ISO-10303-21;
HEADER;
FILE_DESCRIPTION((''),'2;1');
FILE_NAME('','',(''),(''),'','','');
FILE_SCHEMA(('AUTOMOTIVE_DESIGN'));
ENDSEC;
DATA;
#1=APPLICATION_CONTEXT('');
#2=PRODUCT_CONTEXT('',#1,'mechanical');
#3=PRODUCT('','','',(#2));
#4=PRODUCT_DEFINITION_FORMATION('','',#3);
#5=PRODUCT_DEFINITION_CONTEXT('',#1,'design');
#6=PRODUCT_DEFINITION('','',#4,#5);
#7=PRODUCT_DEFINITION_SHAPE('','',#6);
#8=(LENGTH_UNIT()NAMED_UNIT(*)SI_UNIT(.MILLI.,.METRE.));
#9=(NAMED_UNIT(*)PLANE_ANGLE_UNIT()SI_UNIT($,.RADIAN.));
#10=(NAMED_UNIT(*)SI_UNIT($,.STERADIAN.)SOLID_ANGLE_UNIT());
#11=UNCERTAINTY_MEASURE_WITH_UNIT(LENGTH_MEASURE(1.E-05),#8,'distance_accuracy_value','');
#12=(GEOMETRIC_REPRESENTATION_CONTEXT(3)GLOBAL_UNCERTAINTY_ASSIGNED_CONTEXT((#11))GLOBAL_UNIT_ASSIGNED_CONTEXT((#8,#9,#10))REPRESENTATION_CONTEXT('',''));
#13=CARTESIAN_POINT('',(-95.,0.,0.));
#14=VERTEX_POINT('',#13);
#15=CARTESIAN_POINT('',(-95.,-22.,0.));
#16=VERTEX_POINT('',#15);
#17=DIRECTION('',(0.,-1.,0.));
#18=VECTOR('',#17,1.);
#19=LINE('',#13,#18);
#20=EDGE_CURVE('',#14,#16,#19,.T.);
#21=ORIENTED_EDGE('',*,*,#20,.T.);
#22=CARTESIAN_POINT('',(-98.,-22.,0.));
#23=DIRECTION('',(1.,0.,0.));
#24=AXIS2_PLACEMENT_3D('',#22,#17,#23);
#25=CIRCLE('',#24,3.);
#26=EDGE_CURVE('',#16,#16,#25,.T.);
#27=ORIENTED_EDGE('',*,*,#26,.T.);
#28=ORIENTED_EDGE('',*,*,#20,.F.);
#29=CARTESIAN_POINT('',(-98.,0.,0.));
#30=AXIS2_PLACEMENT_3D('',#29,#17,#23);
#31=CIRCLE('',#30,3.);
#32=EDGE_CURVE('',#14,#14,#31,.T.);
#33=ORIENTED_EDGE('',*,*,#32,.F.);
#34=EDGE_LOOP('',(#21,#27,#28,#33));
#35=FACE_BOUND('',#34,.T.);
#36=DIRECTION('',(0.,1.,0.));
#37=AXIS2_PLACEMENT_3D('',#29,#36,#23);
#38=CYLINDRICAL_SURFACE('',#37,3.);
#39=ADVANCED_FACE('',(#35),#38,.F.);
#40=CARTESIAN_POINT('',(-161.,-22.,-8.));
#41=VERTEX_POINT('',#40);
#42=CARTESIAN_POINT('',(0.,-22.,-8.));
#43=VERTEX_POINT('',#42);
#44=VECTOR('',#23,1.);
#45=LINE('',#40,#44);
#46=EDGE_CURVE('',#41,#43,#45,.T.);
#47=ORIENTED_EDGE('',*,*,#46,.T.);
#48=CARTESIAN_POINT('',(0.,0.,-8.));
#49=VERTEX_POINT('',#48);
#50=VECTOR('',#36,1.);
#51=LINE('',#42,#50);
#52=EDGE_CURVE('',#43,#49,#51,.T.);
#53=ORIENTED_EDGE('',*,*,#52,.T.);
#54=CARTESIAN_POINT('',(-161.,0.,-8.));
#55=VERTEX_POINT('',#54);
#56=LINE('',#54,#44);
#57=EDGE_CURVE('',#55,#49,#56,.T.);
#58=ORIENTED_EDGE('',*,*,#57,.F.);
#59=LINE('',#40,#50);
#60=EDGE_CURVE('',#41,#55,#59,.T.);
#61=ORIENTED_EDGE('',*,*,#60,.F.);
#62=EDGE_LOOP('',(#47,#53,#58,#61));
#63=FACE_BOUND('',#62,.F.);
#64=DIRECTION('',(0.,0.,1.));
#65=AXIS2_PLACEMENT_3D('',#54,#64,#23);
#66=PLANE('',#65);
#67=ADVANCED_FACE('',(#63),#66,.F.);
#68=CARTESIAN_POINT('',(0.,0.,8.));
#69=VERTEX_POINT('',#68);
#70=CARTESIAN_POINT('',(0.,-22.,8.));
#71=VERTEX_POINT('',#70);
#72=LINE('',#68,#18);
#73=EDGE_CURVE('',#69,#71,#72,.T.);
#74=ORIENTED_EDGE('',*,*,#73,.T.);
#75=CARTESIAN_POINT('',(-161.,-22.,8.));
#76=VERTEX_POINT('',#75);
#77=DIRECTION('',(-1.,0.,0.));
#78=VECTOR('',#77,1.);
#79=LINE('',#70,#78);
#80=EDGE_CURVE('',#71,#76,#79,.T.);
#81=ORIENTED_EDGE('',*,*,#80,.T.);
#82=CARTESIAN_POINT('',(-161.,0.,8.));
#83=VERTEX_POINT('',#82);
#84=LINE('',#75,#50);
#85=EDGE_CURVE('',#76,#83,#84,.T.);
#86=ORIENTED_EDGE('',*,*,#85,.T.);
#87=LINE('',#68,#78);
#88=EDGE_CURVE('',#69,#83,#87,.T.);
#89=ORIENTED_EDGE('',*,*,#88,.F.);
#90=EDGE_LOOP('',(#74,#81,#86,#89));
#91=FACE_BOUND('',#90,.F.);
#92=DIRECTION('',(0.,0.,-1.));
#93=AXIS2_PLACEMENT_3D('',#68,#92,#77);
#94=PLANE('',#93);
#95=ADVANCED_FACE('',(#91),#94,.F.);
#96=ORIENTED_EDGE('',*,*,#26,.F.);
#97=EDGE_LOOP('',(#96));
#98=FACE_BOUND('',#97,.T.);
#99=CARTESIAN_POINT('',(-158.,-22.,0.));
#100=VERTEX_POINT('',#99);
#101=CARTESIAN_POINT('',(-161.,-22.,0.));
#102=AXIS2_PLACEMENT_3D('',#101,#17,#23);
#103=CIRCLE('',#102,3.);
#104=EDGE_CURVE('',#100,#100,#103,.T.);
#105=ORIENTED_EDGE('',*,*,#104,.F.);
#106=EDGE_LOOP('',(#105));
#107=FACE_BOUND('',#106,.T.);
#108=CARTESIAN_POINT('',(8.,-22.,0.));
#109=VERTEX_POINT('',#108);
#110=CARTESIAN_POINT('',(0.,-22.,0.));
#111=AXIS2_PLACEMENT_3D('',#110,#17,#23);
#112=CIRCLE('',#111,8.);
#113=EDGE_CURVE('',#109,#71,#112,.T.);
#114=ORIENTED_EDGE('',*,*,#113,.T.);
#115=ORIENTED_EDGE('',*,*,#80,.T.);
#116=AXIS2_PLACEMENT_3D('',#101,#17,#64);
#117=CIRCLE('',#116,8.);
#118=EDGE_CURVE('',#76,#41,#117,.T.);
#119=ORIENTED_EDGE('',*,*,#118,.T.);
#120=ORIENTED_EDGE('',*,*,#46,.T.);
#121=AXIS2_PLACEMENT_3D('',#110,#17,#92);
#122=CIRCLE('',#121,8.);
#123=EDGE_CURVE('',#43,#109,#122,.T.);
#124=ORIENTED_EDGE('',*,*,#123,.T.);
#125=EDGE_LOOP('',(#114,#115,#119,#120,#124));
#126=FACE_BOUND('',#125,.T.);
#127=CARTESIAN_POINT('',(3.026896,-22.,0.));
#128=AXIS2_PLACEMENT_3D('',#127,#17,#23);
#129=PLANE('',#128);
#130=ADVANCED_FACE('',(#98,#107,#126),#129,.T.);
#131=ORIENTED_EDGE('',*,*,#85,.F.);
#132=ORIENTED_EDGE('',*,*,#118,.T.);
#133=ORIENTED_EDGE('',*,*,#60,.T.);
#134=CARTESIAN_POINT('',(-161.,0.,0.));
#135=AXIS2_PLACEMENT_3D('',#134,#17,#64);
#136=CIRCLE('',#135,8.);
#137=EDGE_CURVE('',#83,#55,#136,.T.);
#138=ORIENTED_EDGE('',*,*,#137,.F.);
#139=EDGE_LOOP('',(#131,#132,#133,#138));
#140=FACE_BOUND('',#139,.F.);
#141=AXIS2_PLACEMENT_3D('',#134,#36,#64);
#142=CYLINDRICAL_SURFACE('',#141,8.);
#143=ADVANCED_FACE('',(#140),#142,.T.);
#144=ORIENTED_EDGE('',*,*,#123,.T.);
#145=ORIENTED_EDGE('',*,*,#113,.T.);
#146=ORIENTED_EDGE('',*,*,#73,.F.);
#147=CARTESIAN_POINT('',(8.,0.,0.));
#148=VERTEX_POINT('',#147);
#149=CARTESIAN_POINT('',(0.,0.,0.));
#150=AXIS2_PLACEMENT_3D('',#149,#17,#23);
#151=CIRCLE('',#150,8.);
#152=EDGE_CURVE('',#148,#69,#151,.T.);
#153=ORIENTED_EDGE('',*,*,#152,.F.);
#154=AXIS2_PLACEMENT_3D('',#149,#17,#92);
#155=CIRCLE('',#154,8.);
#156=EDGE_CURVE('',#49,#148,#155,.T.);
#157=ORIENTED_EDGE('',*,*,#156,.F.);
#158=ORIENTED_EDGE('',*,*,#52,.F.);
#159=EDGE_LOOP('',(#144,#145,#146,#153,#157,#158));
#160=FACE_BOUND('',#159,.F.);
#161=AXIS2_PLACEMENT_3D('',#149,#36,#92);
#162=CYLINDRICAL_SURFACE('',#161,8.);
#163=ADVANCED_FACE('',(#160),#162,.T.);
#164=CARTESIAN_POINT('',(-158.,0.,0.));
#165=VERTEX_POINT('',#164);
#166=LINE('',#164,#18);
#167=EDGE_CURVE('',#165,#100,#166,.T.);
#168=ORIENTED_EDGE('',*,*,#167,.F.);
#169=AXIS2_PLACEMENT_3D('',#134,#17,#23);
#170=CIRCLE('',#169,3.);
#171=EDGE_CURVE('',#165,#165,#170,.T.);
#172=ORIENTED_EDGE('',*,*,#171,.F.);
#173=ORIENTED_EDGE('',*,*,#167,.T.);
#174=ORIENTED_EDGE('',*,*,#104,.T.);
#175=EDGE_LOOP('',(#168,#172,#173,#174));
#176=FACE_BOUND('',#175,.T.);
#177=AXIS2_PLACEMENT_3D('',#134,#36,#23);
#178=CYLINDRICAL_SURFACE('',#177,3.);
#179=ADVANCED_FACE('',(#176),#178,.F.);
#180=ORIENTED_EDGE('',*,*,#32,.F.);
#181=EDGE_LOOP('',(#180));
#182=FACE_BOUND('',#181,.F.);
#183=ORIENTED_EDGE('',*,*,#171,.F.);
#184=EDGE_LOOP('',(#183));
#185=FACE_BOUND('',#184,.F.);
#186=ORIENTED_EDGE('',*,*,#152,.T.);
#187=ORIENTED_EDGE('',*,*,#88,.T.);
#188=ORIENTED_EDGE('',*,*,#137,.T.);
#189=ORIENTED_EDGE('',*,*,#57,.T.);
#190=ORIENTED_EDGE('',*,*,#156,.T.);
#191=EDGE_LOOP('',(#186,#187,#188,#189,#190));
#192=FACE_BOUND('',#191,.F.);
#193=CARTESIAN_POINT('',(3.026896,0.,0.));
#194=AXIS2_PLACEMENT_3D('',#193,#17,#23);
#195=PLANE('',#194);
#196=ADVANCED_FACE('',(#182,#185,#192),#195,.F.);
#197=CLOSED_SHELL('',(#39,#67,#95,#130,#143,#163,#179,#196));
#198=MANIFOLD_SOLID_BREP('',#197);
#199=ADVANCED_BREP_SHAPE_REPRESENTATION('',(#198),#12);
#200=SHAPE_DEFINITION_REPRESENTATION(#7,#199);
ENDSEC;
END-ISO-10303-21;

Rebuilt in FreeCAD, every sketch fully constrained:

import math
import FreeCAD as App
import Part
import Sketcher

V = App.Vector

doc = App.newDocument("Part")
params = doc.addObject("Spreadsheet::Sheet", "Params")
for row, (alias, value) in enumerate([
    ("sketch1_diameter", "6 mm"),
    ("sketch1_radius", "8 mm"),
    ("sketch1_width", "161 mm"),
    ("pad1_length", "6 mm"),
    ("sketch2_diameter", "6 mm"),
    ("sketch2_radius", "8 mm"),
    ("sketch2_width", "161 mm"),
    ("pad2_length", "22 mm"),
], start=1):
    params.set(f"A{row}", alias)
    params.set(f"B{row}", "=" + value)
    params.setAlias(f"B{row}", alias)

body = doc.addObject("PartDesign::Body", "Body")

# Sketch on XZ plane
sketch1 = doc.addObject("Sketcher::SketchObject", "Sketch")
body.addObject(sketch1)
sketch1.AttachmentSupport = (doc.XZ_Plane, [""])
sketch1.MapMode = "FlatFace"
sketch1.addGeometry(Part.ArcOfCircle(Part.Circle(V(0, 0, 0), V(0, 0, 1), 8), math.radians(-90), math.radians(0)), False)
sketch1.addGeometry(Part.ArcOfCircle(Part.Circle(V(0, 0, 0), V(0, 0, 1), 8), math.radians(0), math.radians(90)), False)
sketch1.addGeometry(Part.LineSegment(V(0, 8, 0), V(-161, 8, 0)), False)
sketch1.addGeometry(Part.ArcOfCircle(Part.Circle(V(-161, 0, 0), V(0, 0, 1), 8), math.radians(90), math.radians(270)), False)
sketch1.addGeometry(Part.LineSegment(V(-161, -8, 0), V(0, -8, 0)), False)
sketch1.addGeometry(Part.Circle(V(-161, 0, 0), V(0, 0, 1), 3), False)
sketch1.addGeometry(Part.Circle(V(-98, 0, 0), V(0, 0, 1), 3), False)
sketch1.addConstraint(Sketcher.Constraint("Tangent", 0, 2, 1, 1))
sketch1.addConstraint(Sketcher.Constraint("Tangent", 1, 2, 2, 1))
sketch1.addConstraint(Sketcher.Constraint("Tangent", 2, 2, 3, 1))
sketch1.addConstraint(Sketcher.Constraint("Tangent", 3, 2, 4, 1))
sketch1.addConstraint(Sketcher.Constraint("Tangent", 4, 2, 0, 1))
sketch1.addConstraint(Sketcher.Constraint("Horizontal", 2))
sketch1.addConstraint(Sketcher.Constraint("Horizontal", 4))
sketch1.addConstraint(Sketcher.Constraint("Coincident", 0, 3, -1, 1))
sketch1.addConstraint(Sketcher.Constraint("Coincident", 5, 3, 3, 3))
sketch1.addConstraint(Sketcher.Constraint("Equal", 0, 1))
sketch1.addConstraint(Sketcher.Constraint("Equal", 5, 6))
sketch1.addConstraint(Sketcher.Constraint("PointOnObject", 6, 3, -1))
sketch1.addConstraint(Sketcher.Constraint("PointOnObject", 0, 2, -1))
sketch1.addConstraint(Sketcher.Constraint("Diameter", 5, 6.0))
sketch1.addConstraint(Sketcher.Constraint("Radius", 0, 8.0))
sketch1.addConstraint(Sketcher.Constraint("DistanceX", 2, 2, 2, 1, 161.0))
sketch1.addConstraint(Sketcher.Constraint("DistanceX", 6, 3, -1, 1, 98.0))
sketch1.setExpression("Constraints[13]", "Params.sketch1_diameter")
sketch1.setExpression("Constraints[14]", "Params.sketch1_radius")
sketch1.setExpression("Constraints[15]", "Params.sketch1_width")
pad1 = doc.addObject("PartDesign::Pad", "Pad")
body.addObject(pad1)
pad1.Profile = sketch1
pad1.setExpression("Length", "Params.pad1_length")

# Sketch on XZ plane
sketch2 = doc.addObject("Sketcher::SketchObject", "Sketch001")
body.addObject(sketch2)
sketch2.AttachmentSupport = (doc.XZ_Plane, [""])
sketch2.MapMode = "FlatFace"
sketch2.addGeometry(Part.ArcOfCircle(Part.Circle(V(0, 0, 0), V(0, 0, 1), 8), math.radians(-90), math.radians(0)), False)
sketch2.addGeometry(Part.ArcOfCircle(Part.Circle(V(0, 0, 0), V(0, 0, 1), 8), math.radians(0), math.radians(90)), False)
sketch2.addGeometry(Part.LineSegment(V(0, 8, 0), V(-161, 8, 0)), False)
sketch2.addGeometry(Part.ArcOfCircle(Part.Circle(V(-161, 0, 0), V(0, 0, 1), 8), math.radians(90), math.radians(270)), False)
sketch2.addGeometry(Part.LineSegment(V(-161, -8, 0), V(0, -8, 0)), False)
sketch2.addGeometry(Part.Circle(V(-161, 0, 0), V(0, 0, 1), 3), False)
sketch2.addGeometry(Part.Circle(V(-98, 0, 0), V(0, 0, 1), 3), False)
sketch2.addConstraint(Sketcher.Constraint("Tangent", 0, 2, 1, 1))
sketch2.addConstraint(Sketcher.Constraint("Tangent", 1, 2, 2, 1))
sketch2.addConstraint(Sketcher.Constraint("Tangent", 2, 2, 3, 1))
sketch2.addConstraint(Sketcher.Constraint("Tangent", 3, 2, 4, 1))
sketch2.addConstraint(Sketcher.Constraint("Tangent", 4, 2, 0, 1))
sketch2.addConstraint(Sketcher.Constraint("Horizontal", 2))
sketch2.addConstraint(Sketcher.Constraint("Horizontal", 4))
sketch2.addConstraint(Sketcher.Constraint("Coincident", 0, 3, -1, 1))
sketch2.addConstraint(Sketcher.Constraint("Coincident", 5, 3, 3, 3))
sketch2.addConstraint(Sketcher.Constraint("Equal", 0, 1))
sketch2.addConstraint(Sketcher.Constraint("Equal", 5, 6))
sketch2.addConstraint(Sketcher.Constraint("PointOnObject", 6, 3, -1))
sketch2.addConstraint(Sketcher.Constraint("PointOnObject", 0, 2, -1))
sketch2.addConstraint(Sketcher.Constraint("Diameter", 5, 6.0))
sketch2.addConstraint(Sketcher.Constraint("Radius", 0, 8.0))
sketch2.addConstraint(Sketcher.Constraint("DistanceX", 2, 2, 2, 1, 161.0))
sketch2.addConstraint(Sketcher.Constraint("DistanceX", 6, 3, -1, 1, 98.0))
sketch2.setExpression("Constraints[13]", "Params.sketch2_diameter")
sketch2.setExpression("Constraints[14]", "Params.sketch2_radius")
sketch2.setExpression("Constraints[15]", "Params.sketch2_width")
pad2 = doc.addObject("PartDesign::Pad", "Pad001")
body.addObject(pad2)
pad2.Profile = sketch2
pad2.setExpression("Length", "Params.pad2_length")

doc.recompute()
